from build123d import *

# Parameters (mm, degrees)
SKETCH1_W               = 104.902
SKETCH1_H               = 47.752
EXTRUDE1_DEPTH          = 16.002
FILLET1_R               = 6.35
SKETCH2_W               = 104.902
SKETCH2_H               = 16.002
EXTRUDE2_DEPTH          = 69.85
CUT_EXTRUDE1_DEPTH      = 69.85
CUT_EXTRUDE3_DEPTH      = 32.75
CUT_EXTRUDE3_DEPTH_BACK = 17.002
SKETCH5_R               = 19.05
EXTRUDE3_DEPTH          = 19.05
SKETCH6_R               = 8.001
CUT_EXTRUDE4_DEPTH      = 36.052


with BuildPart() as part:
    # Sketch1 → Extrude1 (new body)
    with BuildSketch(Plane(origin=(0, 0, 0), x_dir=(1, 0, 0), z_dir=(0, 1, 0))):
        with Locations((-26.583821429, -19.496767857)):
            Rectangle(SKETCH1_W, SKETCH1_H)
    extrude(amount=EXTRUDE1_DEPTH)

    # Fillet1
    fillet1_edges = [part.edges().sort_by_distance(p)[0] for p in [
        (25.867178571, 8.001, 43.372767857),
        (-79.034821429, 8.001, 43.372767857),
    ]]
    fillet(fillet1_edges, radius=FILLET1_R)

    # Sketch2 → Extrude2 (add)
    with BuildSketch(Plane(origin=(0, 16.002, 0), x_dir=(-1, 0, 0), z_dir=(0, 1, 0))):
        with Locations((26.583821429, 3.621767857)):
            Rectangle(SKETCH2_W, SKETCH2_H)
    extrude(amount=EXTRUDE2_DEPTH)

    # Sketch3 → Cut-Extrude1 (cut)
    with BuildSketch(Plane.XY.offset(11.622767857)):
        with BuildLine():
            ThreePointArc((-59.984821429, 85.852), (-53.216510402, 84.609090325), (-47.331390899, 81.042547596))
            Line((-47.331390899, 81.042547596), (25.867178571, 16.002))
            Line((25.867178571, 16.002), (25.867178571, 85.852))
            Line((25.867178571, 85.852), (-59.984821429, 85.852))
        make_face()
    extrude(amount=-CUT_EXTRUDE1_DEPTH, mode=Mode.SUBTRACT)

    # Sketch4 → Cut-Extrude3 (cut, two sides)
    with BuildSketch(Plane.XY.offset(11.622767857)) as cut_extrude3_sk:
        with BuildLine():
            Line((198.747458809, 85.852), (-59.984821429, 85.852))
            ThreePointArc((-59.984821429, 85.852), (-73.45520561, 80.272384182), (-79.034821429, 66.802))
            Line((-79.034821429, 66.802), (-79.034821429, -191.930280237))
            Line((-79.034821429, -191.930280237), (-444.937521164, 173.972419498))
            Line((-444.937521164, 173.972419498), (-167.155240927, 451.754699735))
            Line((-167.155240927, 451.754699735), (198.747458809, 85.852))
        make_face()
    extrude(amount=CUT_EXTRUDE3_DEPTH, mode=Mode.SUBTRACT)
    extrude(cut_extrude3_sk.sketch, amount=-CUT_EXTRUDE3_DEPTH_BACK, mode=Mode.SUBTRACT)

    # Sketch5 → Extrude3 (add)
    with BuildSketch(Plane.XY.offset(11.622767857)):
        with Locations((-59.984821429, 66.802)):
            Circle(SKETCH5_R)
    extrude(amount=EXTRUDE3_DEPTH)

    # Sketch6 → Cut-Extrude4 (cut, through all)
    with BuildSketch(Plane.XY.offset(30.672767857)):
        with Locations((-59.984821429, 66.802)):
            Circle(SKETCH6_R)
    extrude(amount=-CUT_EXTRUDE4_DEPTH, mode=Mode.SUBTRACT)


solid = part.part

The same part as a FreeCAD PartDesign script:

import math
import FreeCAD as App
import Part
import Sketcher
from FreeCAD import Vector
Q = App.Units.Quantity


def edges_at(feature, points):
    """Names of the edges that pass closest to the given points."""
    edges = feature.Shape.Edges
    near = lambda p: min(range(len(edges)), key=lambda i: edges[i].distToShape(Part.Vertex(*p))[0])
    return sorted({f"Edge{near(p) + 1}" for p in points})


def add_polygon(sketch, points):
    """Adds a closed chain of lines whose ends are joined by coincident constraints."""
    first, n = sketch.GeometryCount, len(points)
    for a, b in zip(points, points[1:] + points[:1]):
        sketch.addGeometry(Part.LineSegment(App.Vector(*a, 0), App.Vector(*b, 0)), False)
    for i in range(n):
        sketch.addConstraint(Sketcher.Constraint("Coincident", first + i, 2, first + (i + 1) % n, 1))

doc = App.newDocument("Part")
body = doc.addObject("PartDesign::Body", "Body")

sketch1 = body.newObject("Sketcher::SketchObject", "Sketch")
sketch1.AttachmentSupport = (doc.getObject("XZ_Plane"), [""])
sketch1.MapMode = "FlatFace"
add_polygon(sketch1, [(-79, -4), (-79, 43), (26, 43), (26, -4)])
sketch1.addConstraint([
    Sketcher.Constraint("Vertical", 0),
    Sketcher.Constraint("Horizontal", 1),
    Sketcher.Constraint("Vertical", 2),
    Sketcher.Constraint("Horizontal", 3),
    Sketcher.Constraint("DistanceX", 1, 1, 1, 2, Q("4.13 in")),
    Sketcher.Constraint("DistanceY", 0, 1, 0, 2, Q("1.88 in")),
    Sketcher.Constraint("DistanceX", 0, 2, -1, 1, 79.034821),
    Sketcher.Constraint("DistanceY", -1, 1, 0, 2, 43.372768),
])
pad1 = body.newObject("PartDesign::Pad", "Pad")
pad1.Profile = sketch1
pad1.Length = Q("0.63 in")
pad1.Reversed = True
doc.recompute()

fillet = body.newObject("PartDesign::Fillet", "Fillet")
fillet.Base = (pad1, edges_at(pad1, [(25.867, 8.001, 43.373), (-79.035, 8.001, 43.373)]))
fillet.Radius = Q("0.25 in")

sketch2 = body.newObject("Sketcher::SketchObject", "Sketch001")
sketch2.AttachmentSupport = (doc.getObject("XZ_Plane"), [""])
sketch2.MapMode = "FlatFace"
sketch2.AttachmentOffset = App.Placement(Vector(0, 0, -0.63 * 25.4), App.Rotation())
add_polygon(sketch2, [(26, 12), (26, -4), (-79, -4), (-79, 12)])
sketch2.addConstraint([
    Sketcher.Constraint("Vertical", 0),
    Sketcher.Constraint("Horizontal", 1),
    Sketcher.Constraint("Vertical", 2),
    Sketcher.Constraint("Horizontal", 3),
    Sketcher.Constraint("DistanceX", 1, 2, 1, 1, Q("4.13 in")),
    Sketcher.Constraint("DistanceY", 0, 2, 0, 1, Q("0.63 in")),
    Sketcher.Constraint("DistanceX", -1, 1, 0, 2, 25.867179),
    Sketcher.Constraint("DistanceY", 0, 2, -1, 1, 4.379232),
])
pad2 = body.newObject("PartDesign::Pad", "Pad001")
pad2.Profile = sketch2
pad2.Length = Q("2.75 in")
pad2.Reversed = True

sketch3 = body.newObject("Sketcher::SketchObject", "Sketch002")
sketch3.AttachmentSupport = (doc.getObject("XY_Plane"), [""])
sketch3.MapMode = "FlatFace"
sketch3.AttachmentOffset = App.Placement(Vector(0, 0, 11.622768), App.Rotation())
sketch3.addGeometry([
    Part.ArcOfCircle(Part.Circle(Vector(-60, 67, 0), Vector(0, 0, 1), 19), math.radians(48), math.radians(90)),
    Part.LineSegment(Vector(-47, 81, 0), Vector(26, 16, 0)),
    Part.LineSegment(Vector(26, 16, 0), Vector(26, 86, 0)),
    Part.LineSegment(Vector(26, 86, 0), Vector(-60, 86, 0)),
], False)
sketch3.addConstraint([
    Sketcher.Constraint("Tangent", 0, 1, 1, 1),
    Sketcher.Constraint("Coincident", 1, 2, 2, 1),
    Sketcher.Constraint("Coincident", 2, 2, 3, 1),
    Sketcher.Constraint("Tangent", 3, 2, 0, 2),
    Sketcher.Constraint("Vertical", 2),
    Sketcher.Constraint("Horizontal", 3),
    Sketcher.Constraint("Radius", 0, Q("0.75 in")),
    Sketcher.Constraint("DistanceY", 1, 2, 0, 3, Q("2 in")),
    Sketcher.Constraint("DistanceX", 3, 2, 3, 1, Q("3.38 in")),
    Sketcher.Constraint("DistanceY", -1, 1, 0, 3, Q("2.63 in")),
    Sketcher.Constraint("DistanceX", 0, 3, -1, 1, 59.984821),
])
pocket1 = body.newObject("PartDesign::Pocket", "Pocket")
pocket1.Profile = sketch3
pocket1.Length = Q("2.75 in")

sketch4 = body.newObject("Sketcher::SketchObject", "Sketch003")
sketch4.AttachmentSupport = (doc.getObject("XY_Plane"), [""])
sketch4.MapMode = "FlatFace"
sketch4.AttachmentOffset = App.Placement(Vector(0, 0, 11.622768), App.Rotation())
sketch4.addGeometry([
    Part.LineSegment(Vector(-60, 86, 0), Vector(199, 86, 0)),
    Part.LineSegment(Vector(199, 86, 0), Vector(-167, 452, 0)),
    Part.LineSegment(Vector(-167, 452, 0), Vector(-445, 174, 0)),
    Part.LineSegment(Vector(-445, 174, 0), Vector(-79, -192, 0)),
    Part.LineSegment(Vector(-79, -192, 0), Vector(-79, 67, 0)),
    Part.ArcOfCircle(Part.Circle(Vector(-60, 67, 0), Vector(0, 0, 1), 19), math.radians(90), math.radians(180)),
], False)
sketch4.addConstraint([
    Sketcher.Constraint("Coincident", 0, 2, 1, 1),
    Sketcher.Constraint("Coincident", 1, 2, 2, 1),
    Sketcher.Constraint("Coincident", 2, 2, 3, 1),
    Sketcher.Constraint("Coincident", 3, 2, 4, 1),
    Sketcher.Constraint("Tangent", 4, 2, 5, 2),
    Sketcher.Constraint("Tangent", 5, 1, 0, 1),
    Sketcher.Constraint("Horizontal", 0),
    Sketcher.Constraint("Vertical", 4),
    Sketcher.Constraint("Perpendicular", 1, 2),
    Sketcher.Constraint("Perpendicular", 2, 3),
    Sketcher.Constraint("Equal", 0, 4),
    Sketcher.Constraint("Equal", 1, 3),
    Sketcher.Constraint("Radius", 5, Q("0.75 in")),
    Sketcher.Constraint("DistanceY", -1, 1, 5, 3, Q("2.63 in")),
    Sketcher.Constraint("DistanceX", 0, 1, 0, 2, 258.73228),
    Sketcher.Constraint("DistanceY", -1, 1, 1, 2, 451.7547),
    Sketcher.Constraint("DistanceX", 5, 3, -1, 1, 59.984821),
])
pocket2 = body.newObject("PartDesign::Pocket", "Pocket001")
pocket2.Profile = sketch4
pocket2.Type = "ThroughAll"
pocket2.Midplane = True

sketch5 = body.newObject("Sketcher::SketchObject", "Sketch004")
sketch5.AttachmentSupport = (doc.getObject("XY_Plane"), [""])
sketch5.MapMode = "FlatFace"
sketch5.AttachmentOffset = App.Placement(Vector(0, 0, 11.622768), App.Rotation())
sketch5.addGeometry(Part.Circle(Vector(-60, 67, 0), Vector(0, 0, 1), 19), False)
sketch5.addConstraint([
    Sketcher.Constraint("Diameter", 0, Q("1.5 in")),
    Sketcher.Constraint("DistanceY", -1, 1, 0, 3, Q("2.63 in")),
    Sketcher.Constraint("DistanceX", 0, 3, -1, 1, 59.984821),
])
pad3 = body.newObject("PartDesign::Pad", "Pad002")
pad3.Profile = sketch5
pad3.Length = Q("0.75 in")

sketch6 = body.newObject("Sketcher::SketchObject", "Sketch005")
sketch6.AttachmentSupport = (doc.getObject("XY_Plane"), [""])
sketch6.MapMode = "FlatFace"
sketch6.AttachmentOffset = App.Placement(Vector(0, 0, 30.672768), App.Rotation())
sketch6.addGeometry(Part.Circle(Vector(-60, 67, 0), Vector(0, 0, 1), 8), False)
sketch6.addConstraint([
    Sketcher.Constraint("Diameter", 0, Q("0.63 in")),
    Sketcher.Constraint("DistanceY", -1, 1, 0, 3, Q("2.63 in")),
    Sketcher.Constraint("DistanceX", 0, 3, -1, 1, 59.984821),
])
pocket3 = body.newObject("PartDesign::Pocket", "Pocket002")
pocket3.Profile = sketch6
pocket3.Type = "ThroughAll"

doc.recompute()
